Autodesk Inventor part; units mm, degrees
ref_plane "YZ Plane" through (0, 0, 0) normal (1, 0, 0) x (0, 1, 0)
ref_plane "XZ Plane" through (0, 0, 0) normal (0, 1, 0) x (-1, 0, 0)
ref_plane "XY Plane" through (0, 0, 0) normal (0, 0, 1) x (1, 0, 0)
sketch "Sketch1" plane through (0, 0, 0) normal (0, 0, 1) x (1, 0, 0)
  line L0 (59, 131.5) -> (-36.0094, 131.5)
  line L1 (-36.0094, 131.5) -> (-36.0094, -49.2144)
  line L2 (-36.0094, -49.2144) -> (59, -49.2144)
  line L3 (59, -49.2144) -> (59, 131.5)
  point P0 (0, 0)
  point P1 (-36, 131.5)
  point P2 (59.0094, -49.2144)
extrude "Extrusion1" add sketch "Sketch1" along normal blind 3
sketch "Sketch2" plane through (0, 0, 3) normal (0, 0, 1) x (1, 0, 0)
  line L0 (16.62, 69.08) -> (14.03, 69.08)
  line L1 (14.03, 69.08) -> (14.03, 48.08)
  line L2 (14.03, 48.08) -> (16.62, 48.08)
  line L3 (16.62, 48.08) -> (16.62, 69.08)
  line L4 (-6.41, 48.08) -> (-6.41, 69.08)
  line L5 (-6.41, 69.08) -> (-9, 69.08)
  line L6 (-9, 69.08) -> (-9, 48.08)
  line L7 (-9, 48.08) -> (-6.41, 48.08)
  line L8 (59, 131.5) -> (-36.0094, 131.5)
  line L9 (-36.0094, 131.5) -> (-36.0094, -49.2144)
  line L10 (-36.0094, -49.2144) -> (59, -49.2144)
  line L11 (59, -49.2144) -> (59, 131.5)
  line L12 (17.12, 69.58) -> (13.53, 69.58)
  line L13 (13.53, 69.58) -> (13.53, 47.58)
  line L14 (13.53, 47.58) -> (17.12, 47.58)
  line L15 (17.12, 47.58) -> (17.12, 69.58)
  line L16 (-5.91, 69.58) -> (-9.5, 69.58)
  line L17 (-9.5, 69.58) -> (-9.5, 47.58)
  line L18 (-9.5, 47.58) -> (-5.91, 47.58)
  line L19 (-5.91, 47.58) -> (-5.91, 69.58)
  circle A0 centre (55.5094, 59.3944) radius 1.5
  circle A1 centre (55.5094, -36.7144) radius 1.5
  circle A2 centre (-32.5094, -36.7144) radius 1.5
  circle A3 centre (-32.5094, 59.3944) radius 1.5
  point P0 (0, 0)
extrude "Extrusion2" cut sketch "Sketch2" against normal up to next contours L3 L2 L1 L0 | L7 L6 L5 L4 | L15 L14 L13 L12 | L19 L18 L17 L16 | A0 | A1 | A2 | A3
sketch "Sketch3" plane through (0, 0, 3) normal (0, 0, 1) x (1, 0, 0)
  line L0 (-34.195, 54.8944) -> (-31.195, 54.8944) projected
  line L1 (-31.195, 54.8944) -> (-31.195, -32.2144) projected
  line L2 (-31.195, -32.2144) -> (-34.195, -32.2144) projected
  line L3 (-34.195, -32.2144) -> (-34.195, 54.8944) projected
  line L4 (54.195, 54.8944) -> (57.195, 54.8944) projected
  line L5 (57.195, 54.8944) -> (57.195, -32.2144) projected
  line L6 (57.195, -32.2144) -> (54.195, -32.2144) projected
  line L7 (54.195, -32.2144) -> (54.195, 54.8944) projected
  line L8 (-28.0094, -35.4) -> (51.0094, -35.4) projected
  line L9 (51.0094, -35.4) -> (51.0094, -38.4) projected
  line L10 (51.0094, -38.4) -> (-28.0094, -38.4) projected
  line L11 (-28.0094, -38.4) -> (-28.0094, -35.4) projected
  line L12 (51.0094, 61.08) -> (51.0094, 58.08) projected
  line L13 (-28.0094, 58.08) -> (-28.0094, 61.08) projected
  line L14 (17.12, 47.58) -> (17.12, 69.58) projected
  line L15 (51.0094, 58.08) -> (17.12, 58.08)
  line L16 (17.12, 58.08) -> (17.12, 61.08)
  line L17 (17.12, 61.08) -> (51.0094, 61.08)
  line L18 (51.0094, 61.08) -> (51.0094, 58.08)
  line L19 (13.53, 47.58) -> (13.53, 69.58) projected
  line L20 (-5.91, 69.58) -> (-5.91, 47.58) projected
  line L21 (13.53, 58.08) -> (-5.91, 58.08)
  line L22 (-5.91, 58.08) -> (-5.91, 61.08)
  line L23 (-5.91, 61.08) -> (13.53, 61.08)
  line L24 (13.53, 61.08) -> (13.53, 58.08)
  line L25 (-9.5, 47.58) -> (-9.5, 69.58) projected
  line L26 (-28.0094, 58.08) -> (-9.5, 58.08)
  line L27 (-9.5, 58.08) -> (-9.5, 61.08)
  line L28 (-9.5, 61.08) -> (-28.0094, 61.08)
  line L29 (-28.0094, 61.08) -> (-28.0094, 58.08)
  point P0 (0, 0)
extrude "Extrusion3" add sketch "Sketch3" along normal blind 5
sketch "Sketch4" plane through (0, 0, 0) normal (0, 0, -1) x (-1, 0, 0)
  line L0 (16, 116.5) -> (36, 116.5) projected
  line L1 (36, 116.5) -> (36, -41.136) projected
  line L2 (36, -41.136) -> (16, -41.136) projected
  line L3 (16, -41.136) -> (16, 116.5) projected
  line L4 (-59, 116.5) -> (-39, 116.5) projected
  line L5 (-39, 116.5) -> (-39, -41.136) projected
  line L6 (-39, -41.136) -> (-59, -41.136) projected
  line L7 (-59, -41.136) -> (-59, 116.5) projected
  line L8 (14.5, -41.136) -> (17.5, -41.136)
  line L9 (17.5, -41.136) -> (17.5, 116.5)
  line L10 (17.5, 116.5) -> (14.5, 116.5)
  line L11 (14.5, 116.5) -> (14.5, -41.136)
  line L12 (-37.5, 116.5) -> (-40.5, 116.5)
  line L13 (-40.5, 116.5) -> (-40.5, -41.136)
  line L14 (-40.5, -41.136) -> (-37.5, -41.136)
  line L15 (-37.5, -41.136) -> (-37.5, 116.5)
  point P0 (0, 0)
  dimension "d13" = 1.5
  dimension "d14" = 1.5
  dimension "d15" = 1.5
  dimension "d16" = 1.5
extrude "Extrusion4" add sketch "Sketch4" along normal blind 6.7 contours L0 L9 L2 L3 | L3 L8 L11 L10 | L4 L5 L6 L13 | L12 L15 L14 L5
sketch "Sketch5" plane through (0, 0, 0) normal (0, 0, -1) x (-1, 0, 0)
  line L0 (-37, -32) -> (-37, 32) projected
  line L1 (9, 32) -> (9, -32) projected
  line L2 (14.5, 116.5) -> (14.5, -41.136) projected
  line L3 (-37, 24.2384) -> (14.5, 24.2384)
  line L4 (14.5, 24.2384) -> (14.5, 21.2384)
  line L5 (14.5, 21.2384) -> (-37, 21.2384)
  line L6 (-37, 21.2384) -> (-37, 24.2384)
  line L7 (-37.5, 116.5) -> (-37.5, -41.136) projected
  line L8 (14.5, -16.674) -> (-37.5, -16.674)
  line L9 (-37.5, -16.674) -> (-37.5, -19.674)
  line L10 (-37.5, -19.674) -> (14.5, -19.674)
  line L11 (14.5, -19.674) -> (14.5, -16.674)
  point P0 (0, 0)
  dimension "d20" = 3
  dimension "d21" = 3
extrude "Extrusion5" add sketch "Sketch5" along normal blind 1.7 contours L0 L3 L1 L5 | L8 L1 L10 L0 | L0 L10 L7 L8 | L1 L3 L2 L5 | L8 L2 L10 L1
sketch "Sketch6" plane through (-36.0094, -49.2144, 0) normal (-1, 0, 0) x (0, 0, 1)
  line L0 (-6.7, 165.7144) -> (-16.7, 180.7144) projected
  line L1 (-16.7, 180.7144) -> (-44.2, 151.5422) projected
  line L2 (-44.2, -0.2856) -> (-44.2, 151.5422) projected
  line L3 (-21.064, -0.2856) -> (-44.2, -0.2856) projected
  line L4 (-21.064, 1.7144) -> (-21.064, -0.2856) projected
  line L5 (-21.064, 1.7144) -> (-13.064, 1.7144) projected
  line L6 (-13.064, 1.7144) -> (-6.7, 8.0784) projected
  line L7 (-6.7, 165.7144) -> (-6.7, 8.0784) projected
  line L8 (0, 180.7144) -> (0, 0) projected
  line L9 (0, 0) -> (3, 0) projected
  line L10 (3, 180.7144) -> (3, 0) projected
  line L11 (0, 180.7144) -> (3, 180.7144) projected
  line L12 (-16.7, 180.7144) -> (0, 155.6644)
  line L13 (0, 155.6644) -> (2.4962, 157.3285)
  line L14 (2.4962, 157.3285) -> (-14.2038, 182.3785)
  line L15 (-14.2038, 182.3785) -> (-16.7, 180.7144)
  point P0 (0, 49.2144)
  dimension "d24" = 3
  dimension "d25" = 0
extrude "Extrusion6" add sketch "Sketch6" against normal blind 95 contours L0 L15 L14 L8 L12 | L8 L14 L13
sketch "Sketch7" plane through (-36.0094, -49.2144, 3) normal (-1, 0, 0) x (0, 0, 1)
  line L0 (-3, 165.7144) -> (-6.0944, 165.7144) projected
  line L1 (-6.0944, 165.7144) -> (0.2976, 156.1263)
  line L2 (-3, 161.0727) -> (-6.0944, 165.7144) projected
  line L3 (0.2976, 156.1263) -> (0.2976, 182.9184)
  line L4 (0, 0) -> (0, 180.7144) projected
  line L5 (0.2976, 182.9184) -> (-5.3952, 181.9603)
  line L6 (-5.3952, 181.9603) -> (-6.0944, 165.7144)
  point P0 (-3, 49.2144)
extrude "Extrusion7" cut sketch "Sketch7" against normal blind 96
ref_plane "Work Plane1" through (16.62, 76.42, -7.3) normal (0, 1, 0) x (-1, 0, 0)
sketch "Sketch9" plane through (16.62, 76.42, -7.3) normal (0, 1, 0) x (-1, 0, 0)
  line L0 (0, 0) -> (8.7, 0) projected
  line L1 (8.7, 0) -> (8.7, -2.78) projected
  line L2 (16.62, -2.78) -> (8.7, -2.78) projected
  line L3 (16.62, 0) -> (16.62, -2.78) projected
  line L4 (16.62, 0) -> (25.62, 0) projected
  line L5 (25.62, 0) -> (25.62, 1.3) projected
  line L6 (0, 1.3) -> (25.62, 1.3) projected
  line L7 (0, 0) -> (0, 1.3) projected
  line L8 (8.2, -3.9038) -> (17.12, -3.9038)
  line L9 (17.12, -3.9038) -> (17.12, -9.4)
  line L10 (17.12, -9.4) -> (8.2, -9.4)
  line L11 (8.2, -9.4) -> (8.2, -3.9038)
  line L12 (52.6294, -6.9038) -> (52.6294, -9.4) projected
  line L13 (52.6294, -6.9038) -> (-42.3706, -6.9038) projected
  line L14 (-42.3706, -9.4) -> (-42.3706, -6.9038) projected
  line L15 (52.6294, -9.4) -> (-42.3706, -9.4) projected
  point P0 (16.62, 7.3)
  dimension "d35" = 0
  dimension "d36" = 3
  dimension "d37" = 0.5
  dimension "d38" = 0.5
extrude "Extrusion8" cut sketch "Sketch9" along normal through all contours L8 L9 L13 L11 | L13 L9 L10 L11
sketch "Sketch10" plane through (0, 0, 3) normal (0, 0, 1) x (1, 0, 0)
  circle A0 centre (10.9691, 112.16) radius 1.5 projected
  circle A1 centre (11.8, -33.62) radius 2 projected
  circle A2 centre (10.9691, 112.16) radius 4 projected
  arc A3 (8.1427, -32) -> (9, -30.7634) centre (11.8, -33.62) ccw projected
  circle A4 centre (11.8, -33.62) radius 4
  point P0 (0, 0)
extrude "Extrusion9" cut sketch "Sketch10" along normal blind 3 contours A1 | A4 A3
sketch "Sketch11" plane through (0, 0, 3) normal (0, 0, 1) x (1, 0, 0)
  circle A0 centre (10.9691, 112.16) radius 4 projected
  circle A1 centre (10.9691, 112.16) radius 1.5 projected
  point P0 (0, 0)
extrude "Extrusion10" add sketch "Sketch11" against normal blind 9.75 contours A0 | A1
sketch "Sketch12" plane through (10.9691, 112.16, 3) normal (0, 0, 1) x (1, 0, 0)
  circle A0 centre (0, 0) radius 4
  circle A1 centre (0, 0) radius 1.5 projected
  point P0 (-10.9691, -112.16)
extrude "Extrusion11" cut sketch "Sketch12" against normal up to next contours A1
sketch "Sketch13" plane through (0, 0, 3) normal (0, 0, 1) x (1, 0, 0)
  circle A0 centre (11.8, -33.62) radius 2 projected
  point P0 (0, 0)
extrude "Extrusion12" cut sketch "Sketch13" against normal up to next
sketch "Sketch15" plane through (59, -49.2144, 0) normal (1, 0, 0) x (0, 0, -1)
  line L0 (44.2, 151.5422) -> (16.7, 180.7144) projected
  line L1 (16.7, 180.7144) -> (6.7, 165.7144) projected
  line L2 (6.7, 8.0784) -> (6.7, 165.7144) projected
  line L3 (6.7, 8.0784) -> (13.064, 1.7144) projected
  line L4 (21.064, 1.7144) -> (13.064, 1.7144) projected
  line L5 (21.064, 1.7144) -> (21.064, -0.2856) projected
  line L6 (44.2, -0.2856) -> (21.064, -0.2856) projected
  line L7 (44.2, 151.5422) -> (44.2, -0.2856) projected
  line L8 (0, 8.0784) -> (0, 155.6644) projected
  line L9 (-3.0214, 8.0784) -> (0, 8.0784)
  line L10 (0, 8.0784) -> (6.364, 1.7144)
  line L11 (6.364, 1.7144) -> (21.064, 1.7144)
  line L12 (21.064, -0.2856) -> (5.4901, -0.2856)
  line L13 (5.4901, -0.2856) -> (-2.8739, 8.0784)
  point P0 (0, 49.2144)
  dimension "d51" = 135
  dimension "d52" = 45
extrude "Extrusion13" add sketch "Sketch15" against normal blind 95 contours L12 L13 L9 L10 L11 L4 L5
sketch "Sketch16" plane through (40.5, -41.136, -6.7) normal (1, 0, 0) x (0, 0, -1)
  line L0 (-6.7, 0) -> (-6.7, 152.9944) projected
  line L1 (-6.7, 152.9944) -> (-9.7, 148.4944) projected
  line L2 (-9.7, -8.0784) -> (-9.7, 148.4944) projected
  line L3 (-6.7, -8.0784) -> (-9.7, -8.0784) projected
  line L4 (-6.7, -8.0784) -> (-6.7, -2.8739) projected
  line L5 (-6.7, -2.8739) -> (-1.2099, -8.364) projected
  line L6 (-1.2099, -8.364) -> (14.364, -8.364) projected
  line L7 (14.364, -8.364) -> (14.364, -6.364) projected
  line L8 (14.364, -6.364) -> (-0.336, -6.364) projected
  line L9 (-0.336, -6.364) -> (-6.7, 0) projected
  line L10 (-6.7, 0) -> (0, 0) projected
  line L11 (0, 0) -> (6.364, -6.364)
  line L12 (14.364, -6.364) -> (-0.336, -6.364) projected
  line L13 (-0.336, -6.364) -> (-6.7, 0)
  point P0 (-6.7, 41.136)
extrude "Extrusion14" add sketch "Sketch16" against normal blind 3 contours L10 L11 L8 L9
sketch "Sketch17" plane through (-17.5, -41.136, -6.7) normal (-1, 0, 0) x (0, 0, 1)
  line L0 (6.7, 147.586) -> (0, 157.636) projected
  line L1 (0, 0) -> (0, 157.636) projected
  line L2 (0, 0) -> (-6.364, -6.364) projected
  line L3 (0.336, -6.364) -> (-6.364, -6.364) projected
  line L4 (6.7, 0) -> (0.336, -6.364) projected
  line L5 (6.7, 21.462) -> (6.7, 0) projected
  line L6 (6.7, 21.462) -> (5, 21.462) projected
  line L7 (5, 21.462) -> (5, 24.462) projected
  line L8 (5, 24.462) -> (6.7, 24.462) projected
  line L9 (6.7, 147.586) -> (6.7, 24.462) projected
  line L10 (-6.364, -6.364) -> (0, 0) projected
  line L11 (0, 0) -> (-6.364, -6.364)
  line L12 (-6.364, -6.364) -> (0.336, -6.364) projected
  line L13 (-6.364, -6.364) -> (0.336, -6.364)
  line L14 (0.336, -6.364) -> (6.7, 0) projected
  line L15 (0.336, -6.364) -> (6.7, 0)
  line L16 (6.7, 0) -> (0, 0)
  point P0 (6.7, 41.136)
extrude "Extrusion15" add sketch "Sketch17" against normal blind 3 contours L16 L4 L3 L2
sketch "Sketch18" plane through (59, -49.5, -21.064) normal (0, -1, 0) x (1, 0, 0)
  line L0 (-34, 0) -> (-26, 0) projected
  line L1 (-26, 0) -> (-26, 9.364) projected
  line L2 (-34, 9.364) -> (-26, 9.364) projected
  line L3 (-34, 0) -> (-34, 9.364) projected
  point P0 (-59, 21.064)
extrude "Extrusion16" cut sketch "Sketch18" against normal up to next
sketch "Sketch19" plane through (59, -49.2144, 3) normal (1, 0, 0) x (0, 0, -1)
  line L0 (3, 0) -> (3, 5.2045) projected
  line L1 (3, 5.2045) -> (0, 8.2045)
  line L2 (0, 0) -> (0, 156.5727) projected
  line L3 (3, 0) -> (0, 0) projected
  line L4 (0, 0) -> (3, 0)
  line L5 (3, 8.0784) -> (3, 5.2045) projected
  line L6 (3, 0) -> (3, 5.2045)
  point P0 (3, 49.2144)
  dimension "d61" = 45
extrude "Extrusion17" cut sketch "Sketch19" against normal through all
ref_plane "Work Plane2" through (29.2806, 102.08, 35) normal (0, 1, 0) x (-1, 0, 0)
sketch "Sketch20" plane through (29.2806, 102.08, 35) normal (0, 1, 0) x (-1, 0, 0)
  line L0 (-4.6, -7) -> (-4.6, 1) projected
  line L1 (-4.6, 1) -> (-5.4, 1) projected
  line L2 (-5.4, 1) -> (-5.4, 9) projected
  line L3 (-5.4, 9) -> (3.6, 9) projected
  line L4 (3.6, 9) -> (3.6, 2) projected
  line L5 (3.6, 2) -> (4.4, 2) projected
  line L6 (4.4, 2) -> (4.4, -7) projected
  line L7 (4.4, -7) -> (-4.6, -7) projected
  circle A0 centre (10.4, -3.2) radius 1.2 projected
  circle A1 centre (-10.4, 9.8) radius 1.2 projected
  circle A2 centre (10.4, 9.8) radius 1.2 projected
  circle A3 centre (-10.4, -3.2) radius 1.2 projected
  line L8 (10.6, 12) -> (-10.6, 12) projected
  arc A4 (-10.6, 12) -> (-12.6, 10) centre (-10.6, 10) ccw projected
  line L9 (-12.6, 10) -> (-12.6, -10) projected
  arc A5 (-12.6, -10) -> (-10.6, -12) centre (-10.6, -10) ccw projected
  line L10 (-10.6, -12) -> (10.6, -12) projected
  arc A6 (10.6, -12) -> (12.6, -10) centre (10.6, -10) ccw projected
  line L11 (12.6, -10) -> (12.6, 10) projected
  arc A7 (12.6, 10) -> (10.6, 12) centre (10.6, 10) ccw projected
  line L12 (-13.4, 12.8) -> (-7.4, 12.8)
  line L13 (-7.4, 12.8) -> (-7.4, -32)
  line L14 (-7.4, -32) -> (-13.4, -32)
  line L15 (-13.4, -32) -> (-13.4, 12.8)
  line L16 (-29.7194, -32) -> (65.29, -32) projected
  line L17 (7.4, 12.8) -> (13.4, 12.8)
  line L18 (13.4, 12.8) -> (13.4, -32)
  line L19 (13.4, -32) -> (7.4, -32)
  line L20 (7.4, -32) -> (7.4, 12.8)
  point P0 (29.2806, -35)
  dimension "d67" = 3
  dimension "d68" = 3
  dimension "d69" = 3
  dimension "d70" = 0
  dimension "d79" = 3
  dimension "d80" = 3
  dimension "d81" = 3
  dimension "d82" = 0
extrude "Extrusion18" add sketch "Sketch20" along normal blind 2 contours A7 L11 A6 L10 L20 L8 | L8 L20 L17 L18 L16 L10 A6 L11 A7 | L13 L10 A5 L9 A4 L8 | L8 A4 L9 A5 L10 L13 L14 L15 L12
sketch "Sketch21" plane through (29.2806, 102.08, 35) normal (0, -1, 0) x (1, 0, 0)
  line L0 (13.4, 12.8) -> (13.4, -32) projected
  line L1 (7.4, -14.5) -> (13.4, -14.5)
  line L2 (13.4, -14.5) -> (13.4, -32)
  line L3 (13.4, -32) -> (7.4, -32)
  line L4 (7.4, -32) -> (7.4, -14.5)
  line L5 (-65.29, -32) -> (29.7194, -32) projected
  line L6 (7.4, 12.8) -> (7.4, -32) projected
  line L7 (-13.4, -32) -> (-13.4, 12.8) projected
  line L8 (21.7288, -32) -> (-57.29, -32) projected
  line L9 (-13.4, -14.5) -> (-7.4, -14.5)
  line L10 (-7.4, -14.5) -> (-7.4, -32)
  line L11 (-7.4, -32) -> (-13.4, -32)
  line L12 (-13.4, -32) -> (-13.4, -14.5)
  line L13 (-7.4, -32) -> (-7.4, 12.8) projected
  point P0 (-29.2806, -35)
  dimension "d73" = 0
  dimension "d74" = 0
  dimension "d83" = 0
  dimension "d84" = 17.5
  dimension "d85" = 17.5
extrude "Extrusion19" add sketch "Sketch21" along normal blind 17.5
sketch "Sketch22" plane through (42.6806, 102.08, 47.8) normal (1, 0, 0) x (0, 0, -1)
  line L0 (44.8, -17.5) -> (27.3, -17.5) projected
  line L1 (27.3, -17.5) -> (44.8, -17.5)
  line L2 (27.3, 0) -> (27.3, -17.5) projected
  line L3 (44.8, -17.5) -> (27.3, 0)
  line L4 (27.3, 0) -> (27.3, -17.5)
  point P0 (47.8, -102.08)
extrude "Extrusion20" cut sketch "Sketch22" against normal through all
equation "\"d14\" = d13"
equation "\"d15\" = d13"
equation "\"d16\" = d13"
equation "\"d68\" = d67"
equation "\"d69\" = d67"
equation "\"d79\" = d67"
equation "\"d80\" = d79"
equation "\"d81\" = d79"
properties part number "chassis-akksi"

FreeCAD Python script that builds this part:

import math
import FreeCAD as App
import Part
import Sketcher
from FreeCAD import Vector
Q = App.Units.Quantity


def add_polygon(sketch, points):
    """Adds a closed chain of lines whose ends are joined by coincident constraints."""
    first, n = sketch.GeometryCount, len(points)
    for a, b in zip(points, points[1:] + points[:1]):
        sketch.addGeometry(Part.LineSegment(App.Vector(*a, 0), App.Vector(*b, 0)), False)
    for i in range(n):
        sketch.addConstraint(Sketcher.Constraint("Coincident", first + i, 2, first + (i + 1) % n, 1))

doc = App.newDocument("Part")
body = doc.addObject("PartDesign::Body", "Body")

# Sketch on XY plane
sketch1 = body.newObject("Sketcher::SketchObject", "Sketch")
sketch1.AttachmentSupport = (doc.getObject("XY_Plane"), [""])
sketch1.MapMode = "FlatFace"
add_polygon(sketch1, [(59, -49), (59, 132), (-36, 132), (-36, -49)])  # lines 0-3
sketch1.addConstraint([
    Sketcher.Constraint("Vertical", 0),
    Sketcher.Constraint("Horizontal", 1),
    Sketcher.Constraint("Vertical", 2),
    Sketcher.Constraint("Horizontal", 3),
    Sketcher.Constraint("DistanceX", -1, 1, 0, 2, 59.0),
    Sketcher.Constraint("DistanceY", -1, 1, 0, 2, 131.5),
    Sketcher.Constraint("DistanceX", 1, 2, 1, 1, 95.0094),
    Sketcher.Constraint("DistanceY", 0, 1, 0, 2, 180.7144),
])
pad1 = body.newObject("PartDesign::Pad", "Pad")
pad1.Profile = sketch1
pad1.Length = 3

# Sketch on XY plane
sketch2 = body.newObject("Sketcher::SketchObject", "Sketch001")
sketch2.AttachmentSupport = (doc.getObject("XY_Plane"), [""])
sketch2.MapMode = "FlatFace"
sketch2.AttachmentOffset = App.Placement(Vector(0, 0, 3), App.Rotation())
add_polygon(sketch2, [(17.1, 47.6), (17.1, 69.6), (13.5, 69.6), (13.5, 47.6)])  # lines 0-3
add_polygon(sketch2, [(-5.9, 47.6), (-5.9, 69.6), (-9.5, 69.6), (-9.5, 47.6)])  # lines 4-7
sketch2.addGeometry(Part.Circle(Vector(55.5, 59.4, 0), Vector(0, 0, 1), 1.5), False)  # 8
sketch2.addGeometry(Part.Circle(Vector(55.5, -36.7, 0), Vector(0, 0, 1), 1.5), False)  # 9
sketch2.addGeometry(Part.Circle(Vector(-32.5, -36.7, 0), Vector(0, 0, 1), 1.5), False)  # 10
sketch2.addGeometry(Part.Circle(Vector(-32.5, 59.4, 0), Vector(0, 0, 1), 1.5), False)  # 11
sketch2.addConstraint([
    Sketcher.Constraint("Vertical", 0),
    Sketcher.Constraint("Horizontal", 1),
    Sketcher.Constraint("Vertical", 2),
    Sketcher.Constraint("Horizontal", 3),
    Sketcher.Constraint("Vertical", 4),
    Sketcher.Constraint("Horizontal", 5),
    Sketcher.Constraint("Vertical", 6),
    Sketcher.Constraint("Horizontal", 7),
    Sketcher.Constraint("Equal", 8, 9),
    Sketcher.Constraint("Equal", 9, 10),
    Sketcher.Constraint("Equal", 10, 11),
    Sketcher.Constraint("Horizontal", 9, 3, 10, 3),
    Sketcher.Constraint("Horizontal", 8, 3, 11, 3),
    Sketcher.Constraint("Horizontal", 1, 2, 4, 2),
    Sketcher.Constraint("Horizontal", 3, 2, 6, 2),
    Sketcher.Constraint("Vertical", 8, 3, 9, 3),
    Sketcher.Constraint("Vertical", 10, 3, 11, 3),
    Sketcher.Constraint("Equal", 3, 5),
    Sketcher.Constraint("Diameter", 8, 3.0),
    Sketcher.Constraint("DistanceY", 0, 1, 0, 2, 22.0),
    Sketcher.Constraint("DistanceX", 1, 2, 1, 1, 3.59),
    Sketcher.Constraint("DistanceX", 5, 2, -1, 1, 9.5),
    Sketcher.Constraint("DistanceX", -1, 1, 0, 2, 17.12),
    Sketcher.Constraint("DistanceY", -1, 1, 0, 2, 69.58),
    Sketcher.Constraint("DistanceX", -1, 1, 8, 3, 55.5094),
    Sketcher.Constraint("DistanceY", -1, 1, 8, 3, 59.3944),
    Sketcher.Constraint("DistanceY", 9, 3, -1, 1, 36.7144),
    Sketcher.Constraint("DistanceX", 10, 3, -1, 1, 32.5094),
])
pocket1 = body.newObject("PartDesign::Pocket", "Pocket")
pocket1.Profile = sketch2
pocket1.Type = "UpToFirst"

# Sketch on XY plane
sketch3 = body.newObject("Sketcher::SketchObject", "Sketch002")
sketch3.AttachmentSupport = (doc.getObject("XY_Plane"), [""])
sketch3.MapMode = "FlatFace"
sketch3.AttachmentOffset = App.Placement(Vector(0, 0, 3), App.Rotation())
add_polygon(sketch3, [(-31.2, 54.9), (-34.2, 54.9), (-34.2, -32.2), (-31.2, -32.2)])  # lines 0-3
add_polygon(sketch3, [(57.2, 54.9), (54.2, 54.9), (54.2, -32.2), (57.2, -32.2)])  # lines 4-7
add_polygon(sketch3, [(51, -35.4), (-28, -35.4), (-28, -38.4), (51, -38.4)])  # lines 8-11
add_polygon(sketch3, [(51, 58.1), (51, 61.1), (17.1, 61.1), (17.1, 58.1)])  # lines 12-15
add_polygon(sketch3, [(-28, 61.1), (-28, 58.1), (-9.5, 58.1), (-9.5, 61.1)])  # lines 16-19
add_polygon(sketch3, [(-5.9, 58.1), (13.5, 58.1), (13.5, 61.1), (-5.9, 61.1)])  # lines 20-23
sketch3.addConstraint([
    Sketcher.Constraint("Horizontal", 0),
    Sketcher.Constraint("Vertical", 1),
    Sketcher.Constraint("Horizontal", 2),
    Sketcher.Constraint("Vertical", 3),
    Sketcher.Constraint("Horizontal", 4),
    Sketcher.Constraint("Vertical", 5),
    Sketcher.Constraint("Horizontal", 6),
    Sketcher.Constraint("Vertical", 7),
    Sketcher.Constraint("Horizontal", 8),
    Sketcher.Constraint("Vertical", 9),
    Sketcher.Constraint("Horizontal", 10),
    Sketcher.Constraint("Vertical", 11),
    Sketcher.Constraint("Vertical", 12),
    Sketcher.Constraint("Horizontal", 13),
    Sketcher.Constraint("Vertical", 14),
    Sketcher.Constraint("Horizontal", 15),
    Sketcher.Constraint("Vertical", 16),
    Sketcher.Constraint("Horizontal", 17),
    Sketcher.Constraint("Vertical", 18),
    Sketcher.Constraint("Horizontal", 19),
    Sketcher.Constraint("Horizontal", 20),
    Sketcher.Constraint("Vertical", 21),
    Sketcher.Constraint("Horizontal", 22),
    Sketcher.Constraint("Vertical", 23),
    Sketcher.Constraint("Horizontal", 3, 2, 4, 2),
    Sketcher.Constraint("Horizontal", 2, 2, 5, 2),
    Sketcher.Constraint("Horizontal", 15, 2, 16, 2),
    Sketcher.Constraint("Horizontal", 13, 2, 18, 2),
    Sketcher.Constraint("Horizontal", 17, 2, 20, 2),
    Sketcher.Constraint("Horizontal", 19, 2, 21, 2),
    Sketcher.Constraint("Vertical", 11, 2, 12, 2),
    Sketcher.Constraint("Vertical", 9, 2, 16, 2),
    Sketcher.Constraint("Equal", 2, 4),
    Sketcher.Constraint("Equal", 6, 9),
    Sketcher.Constraint("Equal", 11, 12),
    Sketcher.Constraint("DistanceX", 0, 2, 0, 1, 3.0),
    Sketcher.Constraint("DistanceX", 20, 1, 20, 2, 19.44),
    Sketcher.Constraint("DistanceY", 8, 2, -1, 1, 35.4),
    Sketcher.Constraint("DistanceX", 17, 2, -1, 1, 9.5),
    Sketcher.Constraint("DistanceY", -1, 1, 12, 2, 61.08),
    Sketcher.Constraint("DistanceX", -1, 1, 13, 2, 17.12),
    Sketcher.Constraint("DistanceX", -1, 1, 20, 2, 13.53),
    Sketcher.Constraint("DistanceX", 3, 2, 4, 2, 85.39),
    Sketcher.Constraint("DistanceX", 8, 2, 8, 1, 79.0188),
    Sketcher.Constraint("DistanceX", 13, 2, 13, 1, 33.8894),
    Sketcher.Constraint("DistanceY", 1, 2, 1, 1, 87.1088),
    Sketcher.Constraint("DistanceX", 0, 2, -1, 1, 34.195),
    Sketcher.Constraint("DistanceY", -1, 1, 0, 2, 54.8944),
])
pad2 = body.newObject("PartDesign::Pad", "Pad001")
pad2.Profile = sketch3
pad2.Length = 5

# Sketch on XY plane
sketch4 = body.newObject("Sketcher::SketchObject", "Sketch003")
sketch4.AttachmentSupport = (doc.getObject("XY_Plane"), [""])
sketch4.MapMode = "FlatFace"
add_polygon(sketch4, [(-17.5, 116.5), (-14.5, 116.5), (-14.5, -41.1), (-17.5, -41.1)])  # lines 0-3
add_polygon(sketch4, [(40.5, 116.5), (40.5, -41.1), (37.5, -41.1), (37.5, 116.5)])  # lines 4-7
sketch4.addConstraint([
    Sketcher.Constraint("Horizontal", 0),
    Sketcher.Constraint("Vertical", 1),
    Sketcher.Constraint("Horizontal", 2),
    Sketcher.Constraint("Vertical", 3),
    Sketcher.Constraint("Vertical", 4),
    Sketcher.Constraint("Horizontal", 5),
    Sketcher.Constraint("Vertical", 6),
    Sketcher.Constraint("Horizontal", 7),
    Sketcher.Constraint("Horizontal", 2, 2, 4, 2),
    Sketcher.Constraint("Horizontal", 3, 2, 6, 2),
    Sketcher.Constraint("Equal", 2, 5),
    Sketcher.Constraint("DistanceX", 0, 1, 0, 2, 3.0),
    Sketcher.Constraint("DistanceX", 1, 2, 4, 2, 55.0),
    Sketcher.Constraint("DistanceX", 0, 2, -1, 1, 14.5),
    Sketcher.Constraint("DistanceY", -1, 1, 0, 2, 116.5),
    Sketcher.Constraint("DistanceY", 1, 2, 1, 1, 157.636),
])
pad3 = body.newObject("PartDesign::Pad", "Pad002")
pad3.Profile = sketch4
pad3.Length = 6.7
pad3.Reversed = True

# Sketch on XY plane
sketch5 = body.newObject("Sketcher::SketchObject", "Sketch004")
sketch5.AttachmentSupport = (doc.getObject("XY_Plane"), [""])
sketch5.MapMode = "FlatFace"
add_polygon(sketch5, [(37, 24.2), (37, 21.2), (-14.5, 21.2), (-14.5, 24.2)])  # lines 0-3
add_polygon(sketch5, [(37.5, -16.7), (37.5, -19.7), (-14.5, -19.7), (-14.5, -16.7)])  # lines 4-7
sketch5.addConstraint([
    Sketcher.Constraint("Vertical", 0),
    Sketcher.Constraint("Horizontal", 1),
    Sketcher.Constraint("Vertical", 2),
    Sketcher.Constraint("Horizontal", 3),
    Sketcher.Constraint("Vertical", 4),
    Sketcher.Constraint("Horizontal", 5),
    Sketcher.Constraint("Vertical", 6),
    Sketcher.Constraint("Horizontal", 7),
    Sketcher.Constraint("Vertical", 2, 2, 5, 2),
    Sketcher.Constraint("Equal", 2, 4),
    Sketcher.Constraint("DistanceY", 0, 2, 0, 1, 3.0),
    Sketcher.Constraint("DistanceX", 5, 2, 5, 1, 52.0),
    Sketcher.Constraint("DistanceX", 1, 2, 1, 1, 51.5),
    Sketcher.Constraint("DistanceX", -1, 1, 0, 2, 37.0),
    Sketcher.Constraint("DistanceY", 4, 2, -1, 1, 19.674),
    Sketcher.Constraint("DistanceY", -1, 1, 0, 2, 21.2384),
])
pad4 = body.newObject("PartDesign::Pad", "Pad003")
pad4.Profile = sketch5
pad4.Length = 1.7
pad4.Reversed = True

# Sketch on YZ plane
sketch6 = body.newObject("Sketcher::SketchObject", "Sketch005")
sketch6.AttachmentSupport = (doc.getObject("YZ_Plane"), [""])
sketch6.MapMode = "FlatFace"
sketch6.AttachmentOffset = App.Placement(Vector(0, 0, -36.0094), App.Rotation())
add_polygon(sketch6, [(131.5, -16.7), (106.5, 0), (108.1, 2.5), (133.2, -14.2)])  # lines 0-3
sketch6.addConstraint([
    Sketcher.Constraint("PointOnObject", 0, 2, -1),
    Sketcher.Constraint("Perpendicular", 0, 1),
    Sketcher.Constraint("Perpendicular", 1, 2),
    Sketcher.Constraint("Perpendicular", 2, 3),
    Sketcher.Constraint("Distance", 1, 3.0),
    Sketcher.Constraint("DistanceX", -1, 1, 3, 2, 131.5),
    Sketcher.Constraint("DistanceY", 3, 2, -1, 1, 16.7),
    Sketcher.Constraint("Angle", 0, Q("146.31 deg")),
])
pad5 = body.newObject("PartDesign::Pad", "Pad004")
pad5.Profile = sketch6
pad5.Length = 95

# Sketch on YZ plane
sketch7 = body.newObject("Sketcher::SketchObject", "Sketch006")
sketch7.AttachmentSupport = (doc.getObject("YZ_Plane"), [""])
sketch7.MapMode = "FlatFace"
sketch7.AttachmentOffset = App.Placement(Vector(0, 0, -36.0094), App.Rotation())
add_polygon(sketch7, [(133, -2), (116, -3), (107, 3), (134, 3)])  # lines 0-3
sketch7.addConstraint([
    Sketcher.Constraint("Horizontal", 2),
    Sketcher.Constraint("DistanceX", -1, 1, 0, 2, 116.5),
    Sketcher.Constraint("Angle", 1, Q("146.3102 deg")),
    Sketcher.Constraint("DistanceX", 2, 1, 2, 2, 26.792),
    Sketcher.Constraint("Distance", 0, 16.261),
    Sketcher.Constraint("DistanceX", -1, 1, 1, 2, 106.912),
    Sketcher.Constraint("DistanceX", -1, 1, 3, 2, 132.746),
    Sketcher.Constraint("DistanceY", 0, 2, -1, 1, 3.0944),
])
pocket2 = body.newObject("PartDesign::Pocket", "Pocket001")
pocket2.Profile = sketch7
pocket2.Length = 96
pocket2.Reversed = True

# Sketch on XZ plane
sketch8 = body.newObject("Sketcher::SketchObject", "Sketch007")
sketch8.AttachmentSupport = (doc.getObject("XZ_Plane"), [""])
sketch8.MapMode = "FlatFace"
sketch8.AttachmentOffset = App.Placement(Vector(0, 0, -76.42), App.Rotation())
add_polygon(sketch8, [(0, -11), (8, -11), (8, -17), (0, -17)])  # lines 0-3
sketch8.addConstraint([
    Sketcher.Constraint("Horizontal", 0),
    Sketcher.Constraint("Vertical", 1),
    Sketcher.Constraint("Horizontal", 2),
    Sketcher.Constraint("Vertical", 3),
    Sketcher.Constraint("DistanceX", 2, 2, -1, 1, 0.5),
    Sketcher.Constraint("DistanceX", 0, 1, 0, 2, 8.92),
    Sketcher.Constraint("DistanceY", 1, 2, -1, 1, 16.7),
    Sketcher.Constraint("DistanceY", 1, 2, 1, 1, 5.4962),
])
pocket3 = body.newObject("PartDesign::Pocket", "Pocket002")
pocket3.Profile = sketch8
pocket3.Type = "ThroughAll"

# Sketch on XY plane
sketch9 = body.newObject("Sketcher::SketchObject", "Sketch008")
sketch9.AttachmentSupport = (doc.getObject("XY_Plane"), [""])
sketch9.MapMode = "FlatFace"
sketch9.AttachmentOffset = App.Placement(Vector(0, 0, 3), App.Rotation())
sketch9.addGeometry([
    Part.ArcOfCircle(Part.Circle(Vector(11.8, -33.6, 0), Vector(0, 0, 1), 4), math.radians(134), math.radians(156)),
    Part.ArcOfCircle(Part.Circle(Vector(11.8, -33.6, 0), Vector(0, 0, 1), 4), math.radians(156), math.radians(494)),
], False)
sketch9.addConstraint([
    Sketcher.Constraint("Tangent", 0, 1, 1, 2),
    Sketcher.Constraint("Coincident", 1, 1, 0, 2),
    Sketcher.Constraint("Radius", 0, 4.0),
    Sketcher.Constraint("DistanceX", -1, 1, 0, 1, 9.0),
    Sketcher.Constraint("DistanceY", 1, 1, -1, 1, 32.0),
    Sketcher.Constraint("DistanceX", -1, 1, 0, 3, 11.8),
    Sketcher.Constraint("DistanceY", 0, 3, -1, 1, 33.62),
])
pocket4 = body.newObject("PartDesign::Pocket", "Pocket003")
pocket4.Profile = sketch9
pocket4.Length = 3
pocket4.Reversed = True

# Sketch on XY plane
sketch10 = body.newObject("Sketcher::SketchObject", "Sketch009")
sketch10.AttachmentSupport = (doc.getObject("XY_Plane"), [""])
sketch10.MapMode = "FlatFace"
sketch10.AttachmentOffset = App.Placement(Vector(0, 0, 3), App.Rotation())
sketch10.addGeometry(Part.Circle(Vector(11, 112.2, 0), Vector(0, 0, 1), 4), False)
sketch10.addConstraint([
    Sketcher.Constraint("Diameter", 0, 8.0),
    Sketcher.Constraint("DistanceY", -1, 1, 0, 3, 112.16),
    Sketcher.Constraint("DistanceX", -1, 1, 0, 3, 10.969),
])
pad6 = body.newObject("PartDesign::Pad", "Pad005")
pad6.Profile = sketch10
pad6.Length = 9.75
pad6.Reversed = True

# Sketch on XY plane
sketch11 = body.newObject("Sketcher::SketchObject", "Sketch010")
sketch11.AttachmentSupport = (doc.getObject("XY_Plane"), [""])
sketch11.MapMode = "FlatFace"
sketch11.AttachmentOffset = App.Placement(Vector(0, 0, 3), App.Rotation())
sketch11.addGeometry(Part.Circle(Vector(11, 112.2, 0), Vector(0, 0, 1), 1.5), False)
sketch11.addConstraint([
    Sketcher.Constraint("Diameter", 0, 3.0),
    Sketcher.Constraint("DistanceY", -1, 1, 0, 3, 112.16),
    Sketcher.Constraint("DistanceX", -1, 1, 0, 3, 10.969),
])
pocket5 = body.newObject("PartDesign::Pocket", "Pocket004")
pocket5.Profile = sketch11
pocket5.Type = "UpToFirst"

# Sketch on XY plane
sketch12 = body.newObject("Sketcher::SketchObject", "Sketch011")
sketch12.AttachmentSupport = (doc.getObject("XY_Plane"), [""])
sketch12.MapMode = "FlatFace"
sketch12.AttachmentOffset = App.Placement(Vector(0, 0, 3), App.Rotation())
sketch12.addGeometry(Part.Circle(Vector(11.8, -33.6, 0), Vector(0, 0, 1), 2), False)
sketch12.addConstraint([
    Sketcher.Constraint("Diameter", 0, 4.0),
    Sketcher.Constraint("DistanceX", -1, 1, 0, 3, 11.8),
    Sketcher.Constraint("DistanceY", 0, 3, -1, 1, 33.62),
])
pocket6 = body.newObject("PartDesign::Pocket", "Pocket005")
pocket6.Profile = sketch12
pocket6.Type = "UpToFirst"

# Sketch on YZ plane
sketch13 = body.newObject("Sketcher::SketchObject", "Sketch012")
sketch13.AttachmentSupport = (doc.getObject("YZ_Plane"), [""])
sketch13.MapMode = "FlatFace"
sketch13.AttachmentOffset = App.Placement(Vector(0, 0, 59), App.Rotation())
add_polygon(sketch13, [(-49.5, -5.5), (-49.5, -21.1), (-47.5, -21.1), (-47.5, -6.4), (-41.1, 0), (-41.1, 2.9)])  # lines 0-5
sketch13.addConstraint([
    Sketcher.Constraint("Vertical", 0),
    Sketcher.Constraint("Horizontal", 1),
    Sketcher.Constraint("Vertical", 2),
    Sketcher.Constraint("Vertical", 4),
    Sketcher.Constraint("PointOnObject", 3, 2, -1),
    Sketcher.Constraint("Parallel", 3, 5),
    Sketcher.Constraint("Angle", 3, Q("45 deg")),
    Sketcher.Constraint("DistanceX", 1, 1, 1, 2, 2.0),
    Sketcher.Constraint("Distance", 3, 9.0),
    Sketcher.Constraint("DistanceY", 2, 1, 2, 2, 14.7),
    Sketcher.Constraint("DistanceX", 0, 2, -1, 1, 49.5),
    Sketcher.Constraint("DistanceY", 0, 2, 0, 1, 15.574),
])
pad7 = body.newObject("PartDesign::Pad", "Pad006")
pad7.Profile = sketch13
pad7.Length = 95
pad7.Reversed = True

# Sketch on YZ plane
sketch14 = body.newObject("Sketcher::SketchObject", "Sketch013")
sketch14.AttachmentSupport = (doc.getObject("YZ_Plane"), [""])
sketch14.MapMode = "FlatFace"
sketch14.AttachmentOffset = App.Placement(Vector(0, 0, 40.5), App.Rotation())
add_polygon(sketch14, [(-41, -7), (-41, 0), (-48, -6), (-48, -13)])  # lines 0-3
sketch14.addConstraint([
    Sketcher.Constraint("Vertical", 0),
    Sketcher.Constraint("Vertical", 2),
    Sketcher.Constraint("PointOnObject", 0, 2, -1),
    Sketcher.Constraint("Parallel", 1, 3),
    Sketcher.Constraint("Angle", 1, Q("-135 deg")),
    Sketcher.Constraint("Distance", 1, 9.0),
    Sketcher.Constraint("DistanceY", 0, 1, 0, 2, 6.7),
    Sketcher.Constraint("DistanceX", 1, 2, -1, 1, 47.5),
])
pad8 = body.newObject("PartDesign::Pad", "Pad007")
pad8.Profile = sketch14
pad8.Length = 3
pad8.Reversed = True

# Sketch on YZ plane
sketch15 = body.newObject("Sketcher::SketchObject", "Sketch014")
sketch15.AttachmentSupport = (doc.getObject("YZ_Plane"), [""])
sketch15.MapMode = "FlatFace"
sketch15.AttachmentOffset = App.Placement(Vector(0, 0, -17.5), App.Rotation())
add_polygon(sketch15, [(-41, 0), (-41, -7), (-48, -13), (-48, -6)])  # lines 0-3
sketch15.addConstraint([
    Sketcher.Constraint("Vertical", 0),
    Sketcher.Constraint("Vertical", 2),
    Sketcher.Constraint("PointOnObject", 3, 2, -1),
    Sketcher.Constraint("Parallel", 1, 3),
    Sketcher.Constraint("Angle", 1, Q("-135 deg")),
    Sketcher.Constraint("Distance", 1, 9.0),
    Sketcher.Constraint("DistanceY", 0, 2, 0, 1, 6.7),
    Sketcher.Constraint("DistanceX", 1, 2, -1, 1, 47.5),
])
pad9 = body.newObject("PartDesign::Pad", "Pad008")
pad9.Profile = sketch15
pad9.Length = 3

# Sketch on XZ plane
sketch16 = body.newObject("Sketcher::SketchObject", "Sketch015")
sketch16.AttachmentSupport = (doc.getObject("XZ_Plane"), [""])
sketch16.MapMode = "FlatFace"
sketch16.AttachmentOffset = App.Placement(Vector(0, 0, 49.5), App.Rotation())
add_polygon(sketch16, [(25, -12), (25, -21), (33, -21), (33, -12)])  # lines 0-3
sketch16.addConstraint([
    Sketcher.Constraint("Vertical", 0),
    Sketcher.Constraint("Horizontal", 1),
    Sketcher.Constraint("Vertical", 2),
    Sketcher.Constraint("Horizontal", 3),
    Sketcher.Constraint("DistanceX", 1, 1, 1, 2, 8.0),
    Sketcher.Constraint("DistanceX", -1, 1, 0, 2, 25.0),
    Sketcher.Constraint("DistanceY", 2, 2, -1, 1, 11.7),
    Sketcher.Constraint("DistanceY", 0, 2, 0, 1, 9.364),
])
pocket7 = body.newObject("PartDesign::Pocket", "Pocket006")
pocket7.Profile = sketch16
pocket7.Type = "UpToFirst"

# Sketch on YZ plane
sketch17 = body.newObject("Sketcher::SketchObject", "Sketch016")
sketch17.AttachmentSupport = (doc.getObject("YZ_Plane"), [""])
sketch17.MapMode = "FlatFace"
sketch17.AttachmentOffset = App.Placement(Vector(0, 0, 59), App.Rotation())
add_polygon(sketch17, [(-49.2, 3), (-49.2, 0), (-44, 0), (-41, 3)])  # lines 0-3
sketch17.addConstraint([
    Sketcher.Constraint("Vertical", 0),
    Sketcher.Constraint("Horizontal", 1),
    Sketcher.Constraint("Horizontal", 3),
    Sketcher.Constraint("PointOnObject", 0, 2, -1),
    Sketcher.Constraint("Angle", 2, Q("45 deg")),
    Sketcher.Constraint("DistanceY", 0, 2, 0, 1, 3.0),
    Sketcher.Constraint("DistanceX", 1, 2, -1, 1, 44.01),
    Sketcher.Constraint("DistanceX", 1, 1, 1, 2, 5.2045),
])
pocket8 = body.newObject("PartDesign::Pocket", "Pocket007")
pocket8.Profile = sketch17
pocket8.Type = "ThroughAll"

# Sketch on XZ plane
sketch18 = body.newObject("Sketcher::SketchObject", "Sketch017")
sketch18.AttachmentSupport = (doc.getObject("XZ_Plane"), [""])
sketch18.MapMode = "FlatFace"
sketch18.AttachmentOffset = App.Placement(Vector(0, 0, -102.08), App.Rotation())
add_polygon(sketch18, [(21.9, 3), (15.9, 3), (15.9, 47.8), (21.9, 47.8)])  # lines 0-3
sketch18.addGeometry(Part.Circle(Vector(18.9, 31.8, 0), Vector(0, 0, 1), 1.2), False)  # 4
sketch18.addGeometry(Part.Circle(Vector(18.9, 44.8, 0), Vector(0, 0, 1), 1.2), False)  # 5
add_polygon(sketch18, [(36.7, 47.8), (42.7, 47.8), (42.7, 3), (36.7, 3)])  # lines 6-9
sketch18.addGeometry(Part.Circle(Vector(39.7, 31.8, 0), Vector(0, 0, 1), 1.2), False)  # 10
sketch18.addGeometry(Part.Circle(Vector(39.7, 44.8, 0), Vector(0, 0, 1), 1.2), False)  # 11
sketch18.addConstraint([
    Sketcher.Constraint("Horizontal", 0),
    Sketcher.Constraint("Vertical", 1),
    Sketcher.Constraint("Horizontal", 2),
    Sketcher.Constraint("Vertical", 3),
    Sketcher.Constraint("Horizontal", 6),
    Sketcher.Constraint("Vertical", 7),
    Sketcher.Constraint("Horizontal", 8),
    Sketcher.Constraint("Vertical", 9),
    Sketcher.Constraint("Equal", 4, 5),
    Sketcher.Constraint("Equal", 5, 10),
    Sketcher.Constraint("Equal", 10, 11),
    Sketcher.Constraint("Horizontal", 4, 3, 10, 3),
    Sketcher.Constraint("Horizontal", 5, 3, 11, 3),
    Sketcher.Constraint("Horizontal", 2, 2, 6, 2),
    Sketcher.Constraint("Horizontal", 3, 2, 7, 2),
    Sketcher.Constraint("Vertical", 4, 3, 5, 3),
    Sketcher.Constraint("Vertical", 10, 3, 11, 3),
    Sketcher.Constraint("Equal", 2, 6),
    Sketcher.Constraint("DistanceY", -1, 1, 0, 2, 3.0),
    Sketcher.Constraint("DistanceX", 0, 2, 4, 3, 3.0),
    Sketcher.Constraint("DistanceY", 5, 3, 1, 2, 3.0),
    Sketcher.Constraint("DistanceX", 5, 3, 2, 2, 3.0),
    Sketcher.Constraint("DistanceX", 11, 3, 6, 2, 3.0),
    Sketcher.Constraint("Diameter", 4, 2.4),
    Sketcher.Constraint("DistanceY", 1, 1, 1, 2, 44.8),
    Sketcher.Constraint("DistanceY", 4, 3, 5, 3, 13.0),
    Sketcher.Constraint("DistanceX", 4, 3, 10, 3, 20.8),
    Sketcher.Constraint("DistanceX", -1, 1, 4, 3, 18.8806),
])
pad10 = body.newObject("PartDesign::Pad", "Pad009")
pad10.Profile = sketch18
pad10.Length = 2
pad10.Reversed = True

# Sketch on XZ plane
sketch19 = body.newObject("Sketcher::SketchObject", "Sketch018")
sketch19.AttachmentSupport = (doc.getObject("XZ_Plane"), [""])
sketch19.MapMode = "FlatFace"
sketch19.AttachmentOffset = App.Placement(Vector(0, 0, -102.08), App.Rotation())
add_polygon(sketch19, [(16, 3), (22, 3), (22, 20), (16, 20)])  # lines 0-3
add_polygon(sketch19, [(43, 3), (43, 20), (37, 20), (37, 3)])  # lines 4-7
sketch19.addConstraint([
    Sketcher.Constraint("Horizontal", 0),
    Sketcher.Constraint("Vertical", 1),
    Sketcher.Constraint("Horizontal", 2),
    Sketcher.Constraint("Vertical", 3),
    Sketcher.Constraint("Vertical", 4),
    Sketcher.Constraint("Horizontal", 5),
    Sketcher.Constraint("Vertical", 6),
    Sketcher.Constraint("Horizontal", 7),
    Sketcher.Constraint("Horizontal", 2, 2, 4, 2),
    Sketcher.Constraint("Horizontal", 3, 2, 6, 2),
    Sketcher.Constraint("Equal", 2, 5),
    Sketcher.Constraint("DistanceY", 1, 1, 1, 2, 17.5),
    Sketcher.Constraint("DistanceX", 0, 1, 0, 2, 6.0),
    Sketcher.Constraint("DistanceY", -1, 1, 0, 2, 3.0),
    Sketcher.Constraint("DistanceX", 1, 2, 4, 2, 20.8),
    Sketcher.Constraint("DistanceX", -1, 1, 0, 2, 21.8806),
])
pad11 = body.newObject("PartDesign::Pad", "Pad010")
pad11.Profile = sketch19
pad11.Length = 17.5

# Sketch on YZ plane
sketch20 = body.newObject("Sketcher::SketchObject", "Sketch019")
sketch20.AttachmentSupport = (doc.getObject("YZ_Plane"), [""])
sketch20.MapMode = "FlatFace"
sketch20.AttachmentOffset = App.Placement(Vector(0, 0, 42.6806), App.Rotation())
add_polygon(sketch20, [(85, 20), (85, 3), (102, 20)])  # lines 0-2
sketch20.addConstraint([
    Sketcher.Constraint("Vertical", 0),
    Sketcher.Constraint("Horizontal", 2),
    Sketcher.Constraint("Equal", 2, 0),
    Sketcher.Constraint("DistanceX", 2, 2, 2, 1, 17.5),
    Sketcher.Constraint("DistanceY", -1, 1, 0, 2, 3.0),
    Sketcher.Constraint("DistanceX", -1, 1, 0, 2, 84.58),
])
pocket9 = body.newObject("PartDesign::Pocket", "Pocket008")
pocket9.Profile = sketch20
pocket9.Type = "ThroughAll"

doc.recompute()
